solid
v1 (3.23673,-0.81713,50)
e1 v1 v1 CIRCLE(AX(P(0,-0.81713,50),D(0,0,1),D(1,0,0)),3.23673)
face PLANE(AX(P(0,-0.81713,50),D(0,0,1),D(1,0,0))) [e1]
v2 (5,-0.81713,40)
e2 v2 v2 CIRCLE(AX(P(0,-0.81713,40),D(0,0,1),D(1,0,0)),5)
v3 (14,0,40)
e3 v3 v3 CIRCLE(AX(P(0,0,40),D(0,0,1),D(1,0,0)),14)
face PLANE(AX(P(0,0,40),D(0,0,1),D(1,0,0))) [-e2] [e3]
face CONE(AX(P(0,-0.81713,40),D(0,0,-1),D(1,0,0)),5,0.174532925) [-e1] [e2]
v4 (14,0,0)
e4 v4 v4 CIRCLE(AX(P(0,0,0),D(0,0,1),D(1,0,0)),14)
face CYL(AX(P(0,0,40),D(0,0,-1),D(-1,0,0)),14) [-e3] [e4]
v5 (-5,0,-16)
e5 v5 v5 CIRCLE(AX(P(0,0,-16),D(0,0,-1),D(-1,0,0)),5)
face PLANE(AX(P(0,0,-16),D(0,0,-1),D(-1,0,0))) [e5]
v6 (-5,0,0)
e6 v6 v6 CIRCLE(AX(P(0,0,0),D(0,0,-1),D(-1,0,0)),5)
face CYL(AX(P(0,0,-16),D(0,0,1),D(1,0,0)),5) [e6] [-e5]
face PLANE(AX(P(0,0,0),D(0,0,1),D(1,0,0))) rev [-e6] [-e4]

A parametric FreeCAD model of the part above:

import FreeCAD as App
import Part
import Sketcher
from FreeCAD import Vector
Q = App.Units.Quantity

doc = App.newDocument("Part")
body = doc.addObject("PartDesign::Body", "Body")

# Sketch on XY plane
sketch1 = doc.addObject("Sketcher::SketchObject", "Sketch")
body.addObject(sketch1)
sketch1.AttachmentSupport = (doc.XY_Plane, [""])
sketch1.MapMode = "FlatFace"
sketch1.addGeometry(Part.Circle(Vector(0, 0, 0), Vector(0, 0, 1), 14), False)
sketch1.addConstraint([
    Sketcher.Constraint("Coincident", 0, 3, -1, 1),
    Sketcher.Constraint("Diameter", 0, Q("28 mm")),
])
pad1 = doc.addObject("PartDesign::Pad", "Pad")
body.addObject(pad1)
pad1.Profile = sketch1
pad1.Length = 40

# Sketch on XY plane
sketch2 = doc.addObject("Sketcher::SketchObject", "Sketch001")
body.addObject(sketch2)
sketch2.AttachmentSupport = (doc.XY_Plane, [""])
sketch2.MapMode = "FlatFace"
sketch2.addGeometry(Part.Circle(Vector(0, 0, 0), Vector(0, 0, 1), 5), False)
sketch2.addConstraint([
    Sketcher.Constraint("Coincident", 0, 3, -1, 1),
    Sketcher.Constraint("Diameter", 0, Q("10 mm")),
])
pad2 = doc.addObject("PartDesign::Pad", "Pad001")
body.addObject(pad2)
pad2.Profile = sketch2
pad2.Length = 16
pad2.Reversed = True

# Sketch on XY plane
sketch3 = doc.addObject("Sketcher::SketchObject", "Sketch002")
body.addObject(sketch3)
sketch3.AttachmentSupport = (doc.XY_Plane, [""])
sketch3.MapMode = "FlatFace"
sketch3.AttachmentOffset = App.Placement(Vector(0, 0, 40), App.Rotation())
sketch3.addGeometry(Part.Circle(Vector(0, -0.81713, 0), Vector(0, 0, 1), 5), False)
sketch3.addConstraint([
    Sketcher.Constraint("PointOnObject", 0, 3, -2),
    Sketcher.Constraint("Diameter", 0, Q("10 mm")),
    Sketcher.Constraint("DistanceY", 0, 3, -1, 1, Q("0.81713 mm")),
])
pad3 = doc.addObject("PartDesign::Pad", "Pad002")
body.addObject(pad3)
pad3.Profile = sketch3
pad3.Length = 10
pad3.TaperAngle = -10

doc.recompute()
